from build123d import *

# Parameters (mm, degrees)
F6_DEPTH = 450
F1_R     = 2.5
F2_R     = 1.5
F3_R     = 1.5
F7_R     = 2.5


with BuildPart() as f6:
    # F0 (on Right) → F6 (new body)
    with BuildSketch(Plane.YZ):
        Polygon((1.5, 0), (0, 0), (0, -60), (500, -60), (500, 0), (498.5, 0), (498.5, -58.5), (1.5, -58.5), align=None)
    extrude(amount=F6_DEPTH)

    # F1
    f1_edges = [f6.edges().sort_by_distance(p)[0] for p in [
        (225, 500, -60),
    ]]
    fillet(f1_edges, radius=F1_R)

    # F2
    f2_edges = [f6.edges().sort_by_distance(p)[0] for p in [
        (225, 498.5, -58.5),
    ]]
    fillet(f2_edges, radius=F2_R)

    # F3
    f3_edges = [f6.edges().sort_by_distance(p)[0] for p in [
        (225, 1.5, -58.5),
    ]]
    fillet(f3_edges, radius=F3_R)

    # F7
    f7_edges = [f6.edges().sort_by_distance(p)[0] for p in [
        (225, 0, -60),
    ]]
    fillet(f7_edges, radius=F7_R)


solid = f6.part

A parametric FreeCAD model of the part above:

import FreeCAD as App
import Part
import Sketcher

V = App.Vector


def edges_at(feature, points):
    """Names of the edges that pass closest to the given points."""
    edges = feature.Shape.Edges
    near = lambda p: min(range(len(edges)), key=lambda i: edges[i].distToShape(Part.Vertex(*p))[0])
    return sorted({f"Edge{near(p) + 1}" for p in points})


def add_polygon(sketch, points):
    """Adds a closed chain of lines whose ends are joined by coincident constraints."""
    first, n = sketch.GeometryCount, len(points)
    for a, b in zip(points, points[1:] + points[:1]):
        sketch.addGeometry(Part.LineSegment(App.Vector(*a, 0), App.Vector(*b, 0)), False)
    for i in range(n):
        sketch.addConstraint(Sketcher.Constraint("Coincident", first + i, 2, first + (i + 1) % n, 1))

doc = App.newDocument("Part")
body = doc.addObject("PartDesign::Body", "Body")

sketch1 = body.newObject("Sketcher::SketchObject", "Sketch")
sketch1.AttachmentSupport = (doc.getObject("YZ_Plane"), [""])
sketch1.MapMode = "FlatFace"
add_polygon(sketch1, [(1.5, 0), (0, 0), (0, -60), (500, -60), (500, 0), (498.5, 0), (498.5, -58.5), (1.5, -58.5)])
sketch1.addConstraint([
    Sketcher.Constraint("Horizontal", 0),
    Sketcher.Constraint("Vertical", 1),
    Sketcher.Constraint("Horizontal", 2),
    Sketcher.Constraint("Vertical", 3),
    Sketcher.Constraint("Horizontal", 4),
    Sketcher.Constraint("Vertical", 5),
    Sketcher.Constraint("Horizontal", 6),
    Sketcher.Constraint("Vertical", 7),
    Sketcher.Constraint("Coincident", 0, 2, -1, 1),
    Sketcher.Constraint("PointOnObject", 3, 2, -1),
    Sketcher.Constraint("Equal", 0, 4),
    Sketcher.Constraint("DistanceX", 2, 1, 2, 2, 500.0),
    Sketcher.Constraint("DistanceX", 6, 2, 6, 1, 497.0),
    Sketcher.Constraint("DistanceY", 1, 2, 1, 1, 60.0),
    Sketcher.Constraint("DistanceY", 5, 2, 5, 1, 58.5),
])
pad1 = body.newObject("PartDesign::Pad", "Pad")
pad1.Profile = sketch1
pad1.Length = 450
doc.recompute()

fillet = body.newObject("PartDesign::Fillet", "Fillet")
fillet.Base = (pad1, edges_at(pad1, [(225, 500, -60)]))
fillet.Radius = 2.5
doc.recompute()

fillet2 = body.newObject("PartDesign::Fillet", "Fillet001")
fillet2.Base = (fillet, edges_at(fillet, [(225, 498.5, -58.5)]))
fillet2.Radius = 1.5
doc.recompute()

fillet3 = body.newObject("PartDesign::Fillet", "Fillet002")
fillet3.Base = (fillet2, edges_at(fillet2, [(225, 1.5, -58.5)]))
fillet3.Radius = 1.5
doc.recompute()

fillet4 = body.newObject("PartDesign::Fillet", "Fillet003")
fillet4.Base = (fillet3, edges_at(fillet3, [(225, 0, -60)]))
fillet4.Radius = 2.5

doc.recompute()
